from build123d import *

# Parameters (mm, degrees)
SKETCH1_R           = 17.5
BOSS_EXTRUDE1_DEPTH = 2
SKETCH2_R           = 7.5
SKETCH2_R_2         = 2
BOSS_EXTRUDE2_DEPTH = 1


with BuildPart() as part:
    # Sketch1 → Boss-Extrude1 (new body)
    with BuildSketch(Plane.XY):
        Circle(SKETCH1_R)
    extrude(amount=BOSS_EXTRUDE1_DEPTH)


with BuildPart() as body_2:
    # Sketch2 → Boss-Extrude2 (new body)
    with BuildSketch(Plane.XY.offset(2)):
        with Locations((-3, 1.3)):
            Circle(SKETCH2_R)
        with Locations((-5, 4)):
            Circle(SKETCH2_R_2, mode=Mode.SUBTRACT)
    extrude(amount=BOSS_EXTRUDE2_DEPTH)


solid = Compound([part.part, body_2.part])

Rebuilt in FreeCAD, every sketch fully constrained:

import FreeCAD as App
import Part
import Sketcher

doc = App.newDocument("Part")
body = doc.addObject("PartDesign::Body", "Body")

sketch1 = body.newObject("Sketcher::SketchObject", "Sketch")
sketch1.AttachmentSupport = (doc.getObject("XY_Plane"), [""])
sketch1.MapMode = "FlatFace"
sketch1.addGeometry(Part.Circle(App.Vector(0, 0, 0), App.Vector(0, 0, 1), 18), False)
sketch1.addConstraint([
    Sketcher.Constraint("Coincident", 0, 3, -1, 1),
    Sketcher.Constraint("Diameter", 0, 35.0),
])
pad1 = body.newObject("PartDesign::Pad", "Pad")
pad1.Profile = sketch1
pad1.Length = 2
body2 = doc.addObject("PartDesign::Body", "Body001")

sketch2 = body2.newObject("Sketcher::SketchObject", "Sketch001")
sketch2.AttachmentSupport = (doc.getObject("XY_Plane001"), [""])
sketch2.MapMode = "FlatFace"
sketch2.AttachmentOffset = App.Placement(App.Vector(0, 0, 2), App.Rotation())
sketch2.addGeometry([
    Part.Circle(App.Vector(-3, 1.3, 0), App.Vector(0, 0, 1), 7.5),
    Part.Circle(App.Vector(-5, 4, 0), App.Vector(0, 0, 1), 2),
], False)
sketch2.addConstraint([
    Sketcher.Constraint("Diameter", 0, 15.0),
    Sketcher.Constraint("Diameter", 1, 4.0),
    Sketcher.Constraint("DistanceX", 0, 3, -1, 1, 3.0),
    Sketcher.Constraint("DistanceX", 1, 3, -1, 1, 5.0),
    Sketcher.Constraint("DistanceY", -1, 1, 1, 3, 4.0),
    Sketcher.Constraint("DistanceY", -1, 1, 0, 3, 1.3),
])
pad2 = body2.newObject("PartDesign::Pad", "Pad001")
pad2.Profile = sketch2
pad2.Length = 1

doc.recompute()
